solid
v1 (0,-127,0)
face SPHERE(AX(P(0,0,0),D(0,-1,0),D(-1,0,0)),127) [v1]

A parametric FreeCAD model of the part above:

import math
import FreeCAD as App
import Part
import Sketcher

V = App.Vector
Q = App.Units.Quantity

doc = App.newDocument("Part")
body = doc.addObject("PartDesign::Body", "Body")

# Sketch on XY plane
sketch1 = body.newObject("Sketcher::SketchObject", "Sketch")
sketch1.AttachmentSupport = (doc.getObject("XY_Plane"), [""])
sketch1.MapMode = "FlatFace"
sketch1.addGeometry([
    Part.LineSegment(V(0, -127, 0), V(0, 127, 0)),
    Part.ArcOfCircle(Part.Circle(V(0, 0, 0), V(0, 0, 1), 127), math.radians(90), math.radians(270)),
], False)
sketch1.addConstraint([
    Sketcher.Constraint("Coincident", 0, 1, 1, 2),
    Sketcher.Constraint("Coincident", 1, 1, 0, 2),
    Sketcher.Constraint("Vertical", 0),
    Sketcher.Constraint("Coincident", 1, 3, -1, 1),
    Sketcher.Constraint("PointOnObject", 0, 1, -2),
    Sketcher.Constraint("Radius", 1, Q("5 in")),
])
revolution = body.newObject("PartDesign::Revolution", "Revolution")
revolution.Profile = sketch1
revolution.ReferenceAxis = (sketch1, ["V_Axis"])
revolution.Angle = 360

doc.recompute()
